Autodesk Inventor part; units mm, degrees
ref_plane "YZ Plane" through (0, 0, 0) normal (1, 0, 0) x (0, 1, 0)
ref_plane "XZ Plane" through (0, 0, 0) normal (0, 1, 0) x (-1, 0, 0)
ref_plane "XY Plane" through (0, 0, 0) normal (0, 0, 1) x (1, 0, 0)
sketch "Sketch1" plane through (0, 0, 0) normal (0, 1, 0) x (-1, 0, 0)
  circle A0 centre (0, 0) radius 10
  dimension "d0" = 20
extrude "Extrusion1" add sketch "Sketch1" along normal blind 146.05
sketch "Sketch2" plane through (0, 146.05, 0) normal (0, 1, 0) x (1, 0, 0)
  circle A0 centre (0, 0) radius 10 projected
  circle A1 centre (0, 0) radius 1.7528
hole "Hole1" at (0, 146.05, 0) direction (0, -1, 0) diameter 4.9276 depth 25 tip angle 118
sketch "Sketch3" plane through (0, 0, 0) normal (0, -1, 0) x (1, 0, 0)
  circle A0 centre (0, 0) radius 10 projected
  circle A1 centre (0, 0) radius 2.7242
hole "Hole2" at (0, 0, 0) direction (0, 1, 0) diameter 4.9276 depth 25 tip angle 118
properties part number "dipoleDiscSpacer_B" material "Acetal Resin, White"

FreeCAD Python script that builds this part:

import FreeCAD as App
import Part
import Sketcher
Q = App.Units.Quantity

doc = App.newDocument("Part")
params = doc.addObject("Spreadsheet::Sheet", "Params")
for row, (alias, value) in enumerate([
    ("pad1_length", "5.75 in"),
    ("sketch2_diameter", "0.194 in"),
    ("hole_diameter", "0.194 in"),
    ("hole_depth", "25 mm"),
    ("sketch3_diameter", "0.194 in"),
    ("hole2_diameter", "0.194 in"),
    ("hole2_depth", "25 mm"),
], start=1):
    params.set(f"A{row}", alias)
    params.set(f"B{row}", "=" + value)
    params.setAlias(f"B{row}", alias)

body = doc.addObject("PartDesign::Body", "Body")

sketch1 = body.newObject("Sketcher::SketchObject", "Sketch")
sketch1.AttachmentSupport = (doc.getObject("XZ_Plane"), [""])
sketch1.MapMode = "FlatFace"
sketch1.addGeometry(Part.Circle(App.Vector(0, 0, 0), App.Vector(0, 0, 1), 10), False)
sketch1.addConstraint([
    Sketcher.Constraint("Coincident", 0, 3, -1, 1),
    Sketcher.Constraint("Diameter", 0, Q("0.7874 in")),
])
pad1 = body.newObject("PartDesign::Pad", "Pad")
pad1.Profile = sketch1
pad1.setExpression("Length", "Params.pad1_length")
pad1.Reversed = True

sketch2 = body.newObject("Sketcher::SketchObject", "Sketch001")
sketch2.AttachmentSupport = (doc.getObject("XZ_Plane"), [""])
sketch2.MapMode = "FlatFace"
sketch2.AttachmentOffset = App.Placement(App.Vector(0, 0, -5.75 * 25.4), App.Rotation())
sketch2.addGeometry(Part.Circle(App.Vector(0, 0, 0), App.Vector(0, 0, 1), 2.5), False)
sketch2.addConstraint([
    Sketcher.Constraint("Coincident", 0, 3, -1, 1),
    Sketcher.Constraint("Diameter", 0, Q("0.194 in")),
])
sketch2.setExpression("Constraints[1]", "Params.sketch2_diameter")
doc.recompute()
hole = body.newObject("PartDesign::Hole", "Hole")
hole.Profile = sketch2
hole.ThreadType = "None"
hole.setExpression("Diameter", "Params.hole_diameter")
hole.DepthType = "Dimension"
hole.setExpression("Depth", "Params.hole_depth")
hole.DrillPoint = "Angled"
hole.DrillPointAngle = 118
hole.Reversed = True

sketch3 = body.newObject("Sketcher::SketchObject", "Sketch002")
sketch3.AttachmentSupport = (doc.getObject("XZ_Plane"), [""])
sketch3.MapMode = "FlatFace"
sketch3.addGeometry(Part.Circle(App.Vector(0, 0, 0), App.Vector(0, 0, 1), 2.5), False)
sketch3.addConstraint([
    Sketcher.Constraint("Coincident", 0, 3, -1, 1),
    Sketcher.Constraint("Diameter", 0, Q("0.194 in")),
])
sketch3.setExpression("Constraints[1]", "Params.sketch3_diameter")
doc.recompute()
hole2 = body.newObject("PartDesign::Hole", "Hole001")
hole2.Profile = sketch3
hole2.ThreadType = "None"
hole2.setExpression("Diameter", "Params.hole2_diameter")
hole2.DepthType = "Dimension"
hole2.setExpression("Depth", "Params.hole2_depth")
hole2.DrillPoint = "Angled"
hole2.DrillPointAngle = 118

doc.recompute()
